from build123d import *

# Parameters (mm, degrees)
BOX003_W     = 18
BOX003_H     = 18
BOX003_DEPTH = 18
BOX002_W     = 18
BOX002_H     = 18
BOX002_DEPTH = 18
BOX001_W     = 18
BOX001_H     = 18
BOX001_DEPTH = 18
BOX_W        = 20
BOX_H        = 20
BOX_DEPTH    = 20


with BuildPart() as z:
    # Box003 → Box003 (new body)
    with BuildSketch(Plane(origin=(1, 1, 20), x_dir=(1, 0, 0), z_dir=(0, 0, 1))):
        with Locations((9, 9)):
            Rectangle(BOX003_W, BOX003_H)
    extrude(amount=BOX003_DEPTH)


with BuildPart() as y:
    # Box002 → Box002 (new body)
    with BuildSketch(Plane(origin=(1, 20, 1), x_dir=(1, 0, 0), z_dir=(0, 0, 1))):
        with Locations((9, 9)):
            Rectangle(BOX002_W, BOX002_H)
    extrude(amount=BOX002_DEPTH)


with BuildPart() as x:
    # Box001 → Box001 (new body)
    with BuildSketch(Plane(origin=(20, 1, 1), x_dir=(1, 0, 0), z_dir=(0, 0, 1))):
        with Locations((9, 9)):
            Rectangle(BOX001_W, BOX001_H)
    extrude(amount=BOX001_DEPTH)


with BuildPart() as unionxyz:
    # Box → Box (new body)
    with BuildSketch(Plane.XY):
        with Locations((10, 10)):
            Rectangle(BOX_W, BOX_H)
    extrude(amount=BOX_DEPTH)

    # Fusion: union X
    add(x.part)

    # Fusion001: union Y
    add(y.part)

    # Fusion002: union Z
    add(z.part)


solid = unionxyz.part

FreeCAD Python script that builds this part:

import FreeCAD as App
import Part
import Sketcher
from FreeCAD import Vector
Q = App.Units.Quantity

doc = App.newDocument("Part")
body = doc.addObject("PartDesign::Body", "Body")

sketch1 = body.newObject("Sketcher::SketchObject", "Sketch")
sketch1.AttachmentSupport = (doc.getObject("XY_Plane"), [""])
sketch1.MapMode = "FlatFace"
sketch1.AttachmentOffset = App.Placement(Vector(0, 0, 20), App.Rotation())
sketch1.addGeometry([
    Part.LineSegment(Vector(1, 19, 0), Vector(1, 1, 0)),
    Part.LineSegment(Vector(1, 1, 0), Vector(19, 1, 0)),
    Part.LineSegment(Vector(19, 1, 0), Vector(19, 19, 0)),
    Part.LineSegment(Vector(19, 19, 0), Vector(1, 19, 0)),
], False)
sketch1.addConstraint([
    Sketcher.Constraint("Coincident", 0, 2, 1, 1),
    Sketcher.Constraint("Coincident", 1, 2, 2, 1),
    Sketcher.Constraint("Coincident", 2, 2, 3, 1),
    Sketcher.Constraint("Coincident", 3, 2, 0, 1),
    Sketcher.Constraint("Vertical", 0),
    Sketcher.Constraint("Horizontal", 1),
    Sketcher.Constraint("Vertical", 2),
    Sketcher.Constraint("Horizontal", 3),
    Sketcher.Constraint("Equal", 3, 0),
    Sketcher.Constraint("DistanceX", 1, 1, 1, 2, Q("18 mm")),
    Sketcher.Constraint("DistanceX", -1, 1, 0, 2, Q("1 mm")),
    Sketcher.Constraint("DistanceY", -1, 1, 0, 2, Q("1 mm")),
])
pad1 = body.newObject("PartDesign::Pad", "Pad")
pad1.Profile = sketch1
pad1.Length = 18
body2 = doc.addObject("PartDesign::Body", "Body001")

sketch2 = body2.newObject("Sketcher::SketchObject", "Sketch001")
sketch2.AttachmentSupport = (doc.getObject("XY_Plane001"), [""])
sketch2.MapMode = "FlatFace"
sketch2.AttachmentOffset = App.Placement(Vector(0, 0, 1), App.Rotation())
sketch2.addGeometry([
    Part.LineSegment(Vector(1, 38, 0), Vector(1, 20, 0)),
    Part.LineSegment(Vector(1, 20, 0), Vector(19, 20, 0)),
    Part.LineSegment(Vector(19, 20, 0), Vector(19, 38, 0)),
    Part.LineSegment(Vector(19, 38, 0), Vector(1, 38, 0)),
], False)
sketch2.addConstraint([
    Sketcher.Constraint("Coincident", 0, 2, 1, 1),
    Sketcher.Constraint("Coincident", 1, 2, 2, 1),
    Sketcher.Constraint("Coincident", 2, 2, 3, 1),
    Sketcher.Constraint("Coincident", 3, 2, 0, 1),
    Sketcher.Constraint("Vertical", 0),
    Sketcher.Constraint("Horizontal", 1),
    Sketcher.Constraint("Vertical", 2),
    Sketcher.Constraint("Horizontal", 3),
    Sketcher.Constraint("Equal", 3, 0),
    Sketcher.Constraint("DistanceX", 1, 1, 1, 2, Q("18 mm")),
    Sketcher.Constraint("DistanceX", -1, 1, 0, 2, Q("1 mm")),
    Sketcher.Constraint("DistanceY", -1, 1, 0, 2, Q("20 mm")),
])
pad2 = body2.newObject("PartDesign::Pad", "Pad001")
pad2.Profile = sketch2
pad2.Length = 18
body3 = doc.addObject("PartDesign::Body", "Body002")

sketch3 = body3.newObject("Sketcher::SketchObject", "Sketch002")
sketch3.AttachmentSupport = (doc.getObject("XY_Plane002"), [""])
sketch3.MapMode = "FlatFace"
sketch3.AttachmentOffset = App.Placement(Vector(0, 0, 1), App.Rotation())
sketch3.addGeometry([
    Part.LineSegment(Vector(20, 19, 0), Vector(20, 1, 0)),
    Part.LineSegment(Vector(20, 1, 0), Vector(38, 1, 0)),
    Part.LineSegment(Vector(38, 1, 0), Vector(38, 19, 0)),
    Part.LineSegment(Vector(38, 19, 0), Vector(20, 19, 0)),
], False)
sketch3.addConstraint([
    Sketcher.Constraint("Coincident", 0, 2, 1, 1),
    Sketcher.Constraint("Coincident", 1, 2, 2, 1),
    Sketcher.Constraint("Coincident", 2, 2, 3, 1),
    Sketcher.Constraint("Coincident", 3, 2, 0, 1),
    Sketcher.Constraint("Vertical", 0),
    Sketcher.Constraint("Horizontal", 1),
    Sketcher.Constraint("Vertical", 2),
    Sketcher.Constraint("Horizontal", 3),
    Sketcher.Constraint("Equal", 3, 0),
    Sketcher.Constraint("DistanceX", 1, 1, 1, 2, Q("18 mm")),
    Sketcher.Constraint("DistanceX", -1, 1, 0, 2, Q("20 mm")),
    Sketcher.Constraint("DistanceY", -1, 1, 0, 2, Q("1 mm")),
])
pad3 = body3.newObject("PartDesign::Pad", "Pad002")
pad3.Profile = sketch3
pad3.Length = 18
body4 = doc.addObject("PartDesign::Body", "Body003")

sketch4 = body4.newObject("Sketcher::SketchObject", "Sketch003")
sketch4.AttachmentSupport = (doc.getObject("XY_Plane003"), [""])
sketch4.MapMode = "FlatFace"
sketch4.addGeometry([
    Part.LineSegment(Vector(0, 20, 0), Vector(0, 0, 0)),
    Part.LineSegment(Vector(0, 0, 0), Vector(20, 0, 0)),
    Part.LineSegment(Vector(20, 0, 0), Vector(20, 20, 0)),
    Part.LineSegment(Vector(20, 20, 0), Vector(0, 20, 0)),
], False)
sketch4.addConstraint([
    Sketcher.Constraint("Coincident", 0, 2, 1, 1),
    Sketcher.Constraint("Coincident", 1, 2, 2, 1),
    Sketcher.Constraint("Coincident", 2, 2, 3, 1),
    Sketcher.Constraint("Coincident", 3, 2, 0, 1),
    Sketcher.Constraint("Vertical", 0),
    Sketcher.Constraint("Horizontal", 1),
    Sketcher.Constraint("Vertical", 2),
    Sketcher.Constraint("Horizontal", 3),
    Sketcher.Constraint("Coincident", 0, 2, -1, 1),
    Sketcher.Constraint("Equal", 3, 0),
    Sketcher.Constraint("DistanceX", 1, 1, 1, 2, Q("20 mm")),
])
pad4 = body4.newObject("PartDesign::Pad", "Pad003")
pad4.Profile = sketch4
pad4.Length = 20
doc.recompute()

boolean = body4.newObject("PartDesign::Boolean", "Boolean")
boolean.Type = "Fuse"
boolean.addObjects([body3])
doc.recompute()

boolean2 = body4.newObject("PartDesign::Boolean", "Boolean001")
boolean2.Type = "Fuse"
boolean2.addObjects([body2])
doc.recompute()

boolean3 = body4.newObject("PartDesign::Boolean", "Boolean002")
boolean3.Type = "Fuse"
boolean3.addObjects([body])

doc.recompute()
